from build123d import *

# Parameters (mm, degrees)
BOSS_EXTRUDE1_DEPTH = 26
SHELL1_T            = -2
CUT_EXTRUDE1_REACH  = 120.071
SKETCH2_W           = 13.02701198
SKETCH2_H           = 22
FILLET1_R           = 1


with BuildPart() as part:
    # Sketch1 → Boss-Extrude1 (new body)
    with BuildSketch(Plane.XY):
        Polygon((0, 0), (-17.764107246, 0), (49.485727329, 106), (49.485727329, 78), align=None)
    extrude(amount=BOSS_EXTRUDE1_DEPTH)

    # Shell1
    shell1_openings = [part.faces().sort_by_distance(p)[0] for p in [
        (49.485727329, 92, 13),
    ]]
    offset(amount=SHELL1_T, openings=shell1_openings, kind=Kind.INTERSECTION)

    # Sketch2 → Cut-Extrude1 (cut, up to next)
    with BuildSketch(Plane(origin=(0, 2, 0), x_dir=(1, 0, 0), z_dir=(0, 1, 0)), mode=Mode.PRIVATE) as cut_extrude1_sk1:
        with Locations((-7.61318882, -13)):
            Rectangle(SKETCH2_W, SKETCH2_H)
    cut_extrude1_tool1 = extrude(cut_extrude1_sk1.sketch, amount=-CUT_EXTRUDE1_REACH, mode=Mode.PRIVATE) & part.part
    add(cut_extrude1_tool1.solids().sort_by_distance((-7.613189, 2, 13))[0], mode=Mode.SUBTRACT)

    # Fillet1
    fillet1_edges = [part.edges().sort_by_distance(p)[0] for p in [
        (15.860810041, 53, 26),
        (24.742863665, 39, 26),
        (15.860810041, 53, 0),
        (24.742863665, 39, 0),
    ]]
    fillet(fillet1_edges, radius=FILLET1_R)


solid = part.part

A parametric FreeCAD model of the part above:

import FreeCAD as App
import Part
import Sketcher
Q = App.Units.Quantity


def edges_at(feature, points):
    """Names of the edges that pass closest to the given points."""
    edges = feature.Shape.Edges
    near = lambda p: min(range(len(edges)), key=lambda i: edges[i].distToShape(Part.Vertex(*p))[0])
    return sorted({f"Edge{near(p) + 1}" for p in points})


def faces_at(feature, points):
    """Names of the faces that lie closest to the given points."""
    faces = feature.Shape.Faces
    near = lambda p: min(range(len(faces)), key=lambda i: faces[i].distToShape(Part.Vertex(*p))[0])
    return sorted({f"Face{near(p) + 1}" for p in points})

doc = App.newDocument("Part")
body = doc.addObject("PartDesign::Body", "Body")

sketch1 = body.newObject("Sketcher::SketchObject", "Sketch")
sketch1.AttachmentSupport = (doc.getObject("XY_Plane"), [""])
sketch1.MapMode = "FlatFace"
sketch1.addGeometry([
    Part.LineSegment(App.Vector(-17.764107, 0, 0), App.Vector(0, 0, 0)),
    Part.LineSegment(App.Vector(0, 0, 0), App.Vector(49.485727, 78, 0)),
    Part.LineSegment(App.Vector(49.485727, 78, 0), App.Vector(49.485727, 106, 0)),
    Part.LineSegment(App.Vector(49.485727, 106, 0), App.Vector(-17.764107, 0, 0)),
], False)
sketch1.addConstraint([
    Sketcher.Constraint("Coincident", 0, 2, 1, 1),
    Sketcher.Constraint("Coincident", 1, 2, 2, 1),
    Sketcher.Constraint("Coincident", 2, 2, 3, 1),
    Sketcher.Constraint("Coincident", 3, 2, 0, 1),
    Sketcher.Constraint("Horizontal", 0),
    Sketcher.Constraint("Vertical", 2),
    Sketcher.Constraint("Coincident", 0, 2, -1, 1),
    Sketcher.Constraint("Parallel", 1, 3),
    Sketcher.Constraint("DistanceY", 2, 1, 2, 2, Q("28 mm")),
    Sketcher.Constraint("DistanceY", -1, 1, 1, 2, Q("78 mm")),
    Sketcher.Constraint("DistanceX", 0, 1, 0, 2, Q("17.764107 mm")),
])
pad1 = body.newObject("PartDesign::Pad", "Pad")
pad1.Profile = sketch1
pad1.Length = 26
doc.recompute()

thickness = body.newObject("PartDesign::Thickness", "Thickness")
thickness.Base = (pad1, faces_at(pad1, [(49.486, 92, 13)]))
thickness.Value = 2
thickness.Reversed = True
thickness.Join = "Intersection"

sketch2 = body.newObject("Sketcher::SketchObject", "Sketch001")
sketch2.AttachmentSupport = (doc.getObject("XZ_Plane"), [""])
sketch2.MapMode = "FlatFace"
sketch2.AttachmentOffset = App.Placement(App.Vector(0, 0, -2), App.Rotation())
sketch2.addGeometry([
    Part.LineSegment(App.Vector(-14.126695, 2, 0), App.Vector(-14.126695, 24, 0)),
    Part.LineSegment(App.Vector(-14.126695, 24, 0), App.Vector(-1.099683, 24, 0)),
    Part.LineSegment(App.Vector(-1.099683, 24, 0), App.Vector(-1.099683, 2, 0)),
    Part.LineSegment(App.Vector(-1.099683, 2, 0), App.Vector(-14.126695, 2, 0)),
], False)
sketch2.addConstraint([
    Sketcher.Constraint("Coincident", 0, 2, 1, 1),
    Sketcher.Constraint("Coincident", 1, 2, 2, 1),
    Sketcher.Constraint("Coincident", 2, 2, 3, 1),
    Sketcher.Constraint("Coincident", 3, 2, 0, 1),
    Sketcher.Constraint("Vertical", 0),
    Sketcher.Constraint("Horizontal", 1),
    Sketcher.Constraint("Vertical", 2),
    Sketcher.Constraint("Horizontal", 3),
    Sketcher.Constraint("DistanceY", 0, 1, 0, 2, Q("22 mm")),
    Sketcher.Constraint("DistanceY", -1, 1, 0, 2, Q("24 mm")),
    Sketcher.Constraint("DistanceX", 1, 1, 1, 2, Q("13.027012 mm")),
    Sketcher.Constraint("DistanceX", 0, 2, -1, 1, Q("14.126695 mm")),
])
pocket1 = body.newObject("PartDesign::Pocket", "Pocket")
pocket1.Profile = sketch2
pocket1.Type = "UpToFirst"
pocket1.Reversed = True
doc.recompute()

fillet = body.newObject("PartDesign::Fillet", "Fillet")
fillet.Base = (pocket1, edges_at(pocket1, [
    (15.861, 53, 26),
    (24.743, 39, 26),
    (15.861, 53, 0),
    (24.743, 39, 0),
]))
fillet.Radius = 1

doc.recompute()
